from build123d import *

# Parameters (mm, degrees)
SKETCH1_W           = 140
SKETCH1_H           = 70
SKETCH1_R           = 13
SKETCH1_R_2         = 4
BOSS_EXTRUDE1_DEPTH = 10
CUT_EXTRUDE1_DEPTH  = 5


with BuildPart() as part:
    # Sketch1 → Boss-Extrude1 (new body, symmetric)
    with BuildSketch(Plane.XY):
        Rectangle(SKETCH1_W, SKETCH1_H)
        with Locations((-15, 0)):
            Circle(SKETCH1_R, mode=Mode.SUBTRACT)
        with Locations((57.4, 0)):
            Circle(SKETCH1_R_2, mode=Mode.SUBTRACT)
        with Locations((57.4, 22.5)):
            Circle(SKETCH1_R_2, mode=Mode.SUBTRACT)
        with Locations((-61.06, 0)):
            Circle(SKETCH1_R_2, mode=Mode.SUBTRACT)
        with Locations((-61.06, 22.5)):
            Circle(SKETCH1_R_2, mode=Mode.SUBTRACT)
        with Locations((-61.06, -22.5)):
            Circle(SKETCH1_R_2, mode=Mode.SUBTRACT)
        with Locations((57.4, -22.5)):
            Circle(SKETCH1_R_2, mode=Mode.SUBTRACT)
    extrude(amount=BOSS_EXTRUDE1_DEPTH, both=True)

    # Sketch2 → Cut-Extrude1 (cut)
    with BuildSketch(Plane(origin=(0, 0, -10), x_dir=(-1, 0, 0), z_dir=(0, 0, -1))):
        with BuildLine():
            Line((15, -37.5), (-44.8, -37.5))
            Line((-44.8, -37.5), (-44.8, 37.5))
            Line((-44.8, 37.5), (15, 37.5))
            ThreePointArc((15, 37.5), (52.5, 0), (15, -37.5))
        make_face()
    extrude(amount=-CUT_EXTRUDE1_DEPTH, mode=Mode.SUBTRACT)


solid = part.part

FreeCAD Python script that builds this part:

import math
import FreeCAD as App
import Part
import Sketcher
Q = App.Units.Quantity

doc = App.newDocument("Part")
body = doc.addObject("PartDesign::Body", "Body")

# Sketch on XY plane
sketch1 = doc.addObject("Sketcher::SketchObject", "Sketch")
body.addObject(sketch1)
sketch1.AttachmentSupport = (doc.XY_Plane, [""])
sketch1.MapMode = "FlatFace"
sketch1.addGeometry([
    Part.LineSegment(App.Vector(-70, 35, 0), App.Vector(-70, -35, 0)),  # 0
    Part.LineSegment(App.Vector(-70, -35, 0), App.Vector(70, -35, 0)),  # 1
    Part.LineSegment(App.Vector(70, -35, 0), App.Vector(70, 35, 0)),  # 2
    Part.LineSegment(App.Vector(70, 35, 0), App.Vector(-70, 35, 0)),  # 3
    Part.Circle(App.Vector(-61.06, -22.5, 0), App.Vector(0, 0, 1), 4),  # 4
    Part.Circle(App.Vector(57.4, -22.5, 0), App.Vector(0, 0, 1), 4),  # 5
    Part.Circle(App.Vector(-61.06, 0, 0), App.Vector(0, 0, 1), 4),  # 6
    Part.Circle(App.Vector(-15, 0, 0), App.Vector(0, 0, 1), 13),  # 7
    Part.Circle(App.Vector(-61.06, 22.5, 0), App.Vector(0, 0, 1), 4),  # 8
    Part.Circle(App.Vector(57.4, 0, 0), App.Vector(0, 0, 1), 4),  # 9
    Part.Circle(App.Vector(57.4, 22.5, 0), App.Vector(0, 0, 1), 4),  # 10
], False)
sketch1.addConstraint([
    Sketcher.Constraint("Coincident", 0, 2, 1, 1),
    Sketcher.Constraint("Coincident", 1, 2, 2, 1),
    Sketcher.Constraint("Coincident", 2, 2, 3, 1),
    Sketcher.Constraint("Coincident", 3, 2, 0, 1),
    Sketcher.Constraint("Vertical", 0),
    Sketcher.Constraint("Horizontal", 1),
    Sketcher.Constraint("Vertical", 2),
    Sketcher.Constraint("Horizontal", 3),
    Sketcher.Constraint("Equal", 4, 5),
    Sketcher.Constraint("Equal", 5, 6),
    Sketcher.Constraint("Equal", 6, 8),
    Sketcher.Constraint("Equal", 8, 9),
    Sketcher.Constraint("Equal", 9, 10),
    Sketcher.Constraint("Symmetric", 0, 2, 2, 2, -1, 1),
    Sketcher.Constraint("Symmetric", 4, 3, 8, 3, -1),
    Sketcher.Constraint("Symmetric", 5, 3, 10, 3, -1),
    Sketcher.Constraint("PointOnObject", 6, 3, -1),
    Sketcher.Constraint("PointOnObject", 7, 3, -1),
    Sketcher.Constraint("PointOnObject", 9, 3, -1),
    Sketcher.Constraint("Horizontal", 4, 3, 5, 3),
    Sketcher.Constraint("Vertical", 4, 3, 6, 3),
    Sketcher.Constraint("Vertical", 5, 3, 9, 3),
    Sketcher.Constraint("Diameter", 4, Q("8 mm")),
    Sketcher.Constraint("Diameter", 7, Q("26 mm")),
    Sketcher.Constraint("DistanceX", 1, 1, 1, 2, Q("140 mm")),
    Sketcher.Constraint("DistanceY", 0, 2, 0, 1, Q("70 mm")),
    Sketcher.Constraint("DistanceX", 7, 3, -1, 1, Q("15 mm")),
    Sketcher.Constraint("DistanceY", 4, 3, 8, 3, Q("45 mm")),
    Sketcher.Constraint("DistanceX", -1, 1, 5, 3, Q("57.4 mm")),
    Sketcher.Constraint("DistanceX", 4, 3, -1, 1, Q("61.06 mm")),
])
pad1 = doc.addObject("PartDesign::Pad", "Pad")
body.addObject(pad1)
pad1.Profile = sketch1
pad1.Length = 20
pad1.Midplane = True

# Sketch on XY plane
sketch2 = doc.addObject("Sketcher::SketchObject", "Sketch001")
body.addObject(sketch2)
sketch2.AttachmentSupport = (doc.XY_Plane, [""])
sketch2.MapMode = "FlatFace"
sketch2.AttachmentOffset = App.Placement(App.Vector(0, 0, -10), App.Rotation())
sketch2.addGeometry([
    Part.LineSegment(App.Vector(44.8, -37.5, 0), App.Vector(-15, -37.5, 0)),
    Part.ArcOfCircle(Part.Circle(App.Vector(-15, 0, 0), App.Vector(0, 0, 1), 37.5), math.radians(90), math.radians(270)),
    Part.LineSegment(App.Vector(-15, 37.5, 0), App.Vector(44.8, 37.5, 0)),
    Part.LineSegment(App.Vector(44.8, 37.5, 0), App.Vector(44.8, -37.5, 0)),
], False)
sketch2.addConstraint([
    Sketcher.Constraint("Tangent", 0, 2, 1, 2),
    Sketcher.Constraint("Tangent", 1, 1, 2, 1),
    Sketcher.Constraint("Coincident", 2, 2, 3, 1),
    Sketcher.Constraint("Coincident", 3, 2, 0, 1),
    Sketcher.Constraint("Horizontal", 0),
    Sketcher.Constraint("Horizontal", 2),
    Sketcher.Constraint("Vertical", 3),
    Sketcher.Constraint("PointOnObject", 1, 3, -1),
    Sketcher.Constraint("Radius", 1, Q("37.5 mm")),
    Sketcher.Constraint("DistanceX", 0, 2, 0, 1, Q("59.8 mm")),
    Sketcher.Constraint("DistanceX", 1, 3, -1, 1, Q("15 mm")),
])
pocket1 = doc.addObject("PartDesign::Pocket", "Pocket")
body.addObject(pocket1)
pocket1.Profile = sketch2
pocket1.Length = 5
pocket1.Reversed = True

doc.recompute()
